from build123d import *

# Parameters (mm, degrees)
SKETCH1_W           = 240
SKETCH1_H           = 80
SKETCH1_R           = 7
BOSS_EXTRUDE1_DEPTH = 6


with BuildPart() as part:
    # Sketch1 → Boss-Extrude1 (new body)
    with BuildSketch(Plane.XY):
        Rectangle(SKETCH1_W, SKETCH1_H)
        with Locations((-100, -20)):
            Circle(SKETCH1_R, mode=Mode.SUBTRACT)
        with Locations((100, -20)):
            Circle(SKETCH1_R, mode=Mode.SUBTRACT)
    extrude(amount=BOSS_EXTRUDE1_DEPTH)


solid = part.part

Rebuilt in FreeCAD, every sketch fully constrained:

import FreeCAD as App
import Part
import Sketcher
from FreeCAD import Vector
Q = App.Units.Quantity


def add_polygon(sketch, points):
    """Adds a closed chain of lines whose ends are joined by coincident constraints."""
    first, n = sketch.GeometryCount, len(points)
    for a, b in zip(points, points[1:] + points[:1]):
        sketch.addGeometry(Part.LineSegment(App.Vector(*a, 0), App.Vector(*b, 0)), False)
    for i in range(n):
        sketch.addConstraint(Sketcher.Constraint("Coincident", first + i, 2, first + (i + 1) % n, 1))

doc = App.newDocument("Part")
body = doc.addObject("PartDesign::Body", "Body")

sketch1 = body.newObject("Sketcher::SketchObject", "Sketch")
sketch1.AttachmentSupport = (doc.getObject("XY_Plane"), [""])
sketch1.MapMode = "FlatFace"
add_polygon(sketch1, [(-120, 40), (-120, -40), (120, -40), (120, 40)])
sketch1.addGeometry(Part.Circle(Vector(-100, -20, 0), Vector(0, 0, 1), 7), False)
sketch1.addGeometry(Part.Circle(Vector(100, -20, 0), Vector(0, 0, 1), 7), False)
sketch1.addConstraint([
    Sketcher.Constraint("Vertical", 0),
    Sketcher.Constraint("Horizontal", 1),
    Sketcher.Constraint("Vertical", 2),
    Sketcher.Constraint("Horizontal", 3),
    Sketcher.Constraint("Equal", 4, 5),
    Sketcher.Constraint("Symmetric", 0, 2, 2, 2, -1, 1),
    Sketcher.Constraint("Symmetric", 4, 3, 5, 3, -2),
    Sketcher.Constraint("Diameter", 4, Q("14 mm")),
    Sketcher.Constraint("DistanceX", 1, 1, 1, 2, Q("240 mm")),
    Sketcher.Constraint("DistanceY", 0, 2, 0, 1, Q("80 mm")),
    Sketcher.Constraint("DistanceX", 4, 3, -1, 1, Q("100 mm")),
    Sketcher.Constraint("DistanceY", 4, 3, -1, 1, Q("20 mm")),
])
pad1 = body.newObject("PartDesign::Pad", "Pad")
pad1.Profile = sketch1
pad1.Length = 6

doc.recompute()
